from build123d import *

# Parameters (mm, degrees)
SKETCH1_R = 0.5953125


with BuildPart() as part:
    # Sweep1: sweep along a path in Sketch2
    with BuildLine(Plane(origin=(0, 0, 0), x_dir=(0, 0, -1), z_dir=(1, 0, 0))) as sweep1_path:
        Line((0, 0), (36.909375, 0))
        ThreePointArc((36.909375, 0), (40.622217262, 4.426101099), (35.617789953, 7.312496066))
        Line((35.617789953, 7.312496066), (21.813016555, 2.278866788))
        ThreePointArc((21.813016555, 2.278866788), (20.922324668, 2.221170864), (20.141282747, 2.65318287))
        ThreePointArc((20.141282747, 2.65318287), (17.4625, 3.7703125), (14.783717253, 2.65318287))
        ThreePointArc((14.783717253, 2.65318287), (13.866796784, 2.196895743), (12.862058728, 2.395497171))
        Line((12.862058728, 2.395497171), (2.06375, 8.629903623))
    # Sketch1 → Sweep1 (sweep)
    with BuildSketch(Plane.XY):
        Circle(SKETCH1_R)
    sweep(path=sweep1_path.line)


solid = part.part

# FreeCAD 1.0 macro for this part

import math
import FreeCAD as App
import Part
import Sketcher
from FreeCAD import Vector
Q = App.Units.Quantity

doc = App.newDocument("Part")
params = doc.addObject("Spreadsheet::Sheet", "Params")
for row, (alias, value) in enumerate([
    ("sketch1_diameter", "0.046875 in"),
    ("sketch2_radius", "0.0625 in"),
    ("sketch2_height", "1.453125 in"),
], start=1):
    params.set(f"A{row}", alias)
    params.set(f"B{row}", "=" + value)
    params.setAlias(f"B{row}", alias)

body = doc.addObject("PartDesign::Body", "Body")

# Sketch on XY plane
sketch1 = body.newObject("Sketcher::SketchObject", "Sketch")
sketch1.AttachmentSupport = (doc.getObject("XY_Plane"), [""])
sketch1.MapMode = "FlatFace"
sketch1.addGeometry(Part.Circle(Vector(0, 0, 0), Vector(0, 0, 1), 0.6), False)
sketch1.addConstraint([
    Sketcher.Constraint("Coincident", 0, 3, -1, 1),
    Sketcher.Constraint("Diameter", 0, Q("0.046875 in")),
])
sketch1.setExpression("Constraints[1]", "Params.sketch1_diameter")

# Sketch on YZ plane
sketch2 = body.newObject("Sketcher::SketchObject", "Sketch001")
sketch2.AttachmentSupport = (doc.getObject("YZ_Plane"), [""])
sketch2.MapMode = "FlatFace"
sketch2.addGeometry([
    Part.LineSegment(Vector(0, 0, 0), Vector(0, -36.9, 0)),  # 0
    Part.ArcOfCircle(Part.Circle(Vector(3.8, -36.9, 0), Vector(0, 0, 1), 3.8), math.radians(180), math.radians(380)),  # 1
    Part.LineSegment(Vector(7.3, -35.6, 0), Vector(2.3, -21.8, 0)),  # 2
    Part.ArcOfCircle(Part.Circle(Vector(3.8, -21.3, 0), Vector(0, 0, 1), 1.6), math.radians(135), math.radians(200)),  # 3
    Part.ArcOfCircle(Part.Circle(Vector(0, -17.5, 0), Vector(0, 0, 1), 3.8), math.radians(-45), math.radians(45)),  # 4
    Part.ArcOfCircle(Part.Circle(Vector(3.8, -13.7, 0), Vector(0, 0, 1), 1.6), math.radians(150), math.radians(225)),  # 5
    Part.LineSegment(Vector(2.4, -12.9, 0), Vector(8.6, -2.1, 0)),  # 6
], False)
sketch2.addConstraint([
    Sketcher.Constraint("Tangent", 0, 2, 1, 1),
    Sketcher.Constraint("Tangent", 1, 2, 2, 1),
    Sketcher.Constraint("Tangent", 2, 2, 3, 2),
    Sketcher.Constraint("Tangent", 3, 1, 4, 1),
    Sketcher.Constraint("Tangent", 4, 2, 5, 2),
    Sketcher.Constraint("Tangent", 5, 1, 6, 1),
    Sketcher.Constraint("Vertical", 0),
    Sketcher.Constraint("Coincident", 0, 1, -1, 1),
    Sketcher.Constraint("Equal", 1, 4),
    Sketcher.Constraint("Equal", 3, 5),
    Sketcher.Constraint("PointOnObject", 4, 3, -2),
    Sketcher.Constraint("Vertical", 1, 3, 3, 3),
    Sketcher.Constraint("Vertical", 3, 3, 5, 3),
    Sketcher.Constraint("Angle", 6, Q("60 deg")),
    Sketcher.Constraint("Radius", 3, Q("0.0625 in")),
    Sketcher.Constraint("DistanceY", 0, 2, 0, 1, Q("1.453125 in")),
    Sketcher.Constraint("DistanceY", 4, 3, -1, 1, Q("0.6875 in")),
    Sketcher.Constraint("Radius", 1, 3.770313),
    Sketcher.Constraint("DistanceY", 6, 2, -1, 1, 2.06375),
])
sketch2.setExpression("Constraints[14]", "Params.sketch2_radius")
sketch2.setExpression("Constraints[15]", "Params.sketch2_height")
doc.recompute()

additivepipe = body.newObject("PartDesign::AdditivePipe", "AdditivePipe")
additivepipe.Profile = sketch1
additivepipe.Spine = (sketch2, ["Edge1", "Edge2", "Edge3", "Edge4", "Edge5", "Edge6", "Edge7"])

doc.recompute()
